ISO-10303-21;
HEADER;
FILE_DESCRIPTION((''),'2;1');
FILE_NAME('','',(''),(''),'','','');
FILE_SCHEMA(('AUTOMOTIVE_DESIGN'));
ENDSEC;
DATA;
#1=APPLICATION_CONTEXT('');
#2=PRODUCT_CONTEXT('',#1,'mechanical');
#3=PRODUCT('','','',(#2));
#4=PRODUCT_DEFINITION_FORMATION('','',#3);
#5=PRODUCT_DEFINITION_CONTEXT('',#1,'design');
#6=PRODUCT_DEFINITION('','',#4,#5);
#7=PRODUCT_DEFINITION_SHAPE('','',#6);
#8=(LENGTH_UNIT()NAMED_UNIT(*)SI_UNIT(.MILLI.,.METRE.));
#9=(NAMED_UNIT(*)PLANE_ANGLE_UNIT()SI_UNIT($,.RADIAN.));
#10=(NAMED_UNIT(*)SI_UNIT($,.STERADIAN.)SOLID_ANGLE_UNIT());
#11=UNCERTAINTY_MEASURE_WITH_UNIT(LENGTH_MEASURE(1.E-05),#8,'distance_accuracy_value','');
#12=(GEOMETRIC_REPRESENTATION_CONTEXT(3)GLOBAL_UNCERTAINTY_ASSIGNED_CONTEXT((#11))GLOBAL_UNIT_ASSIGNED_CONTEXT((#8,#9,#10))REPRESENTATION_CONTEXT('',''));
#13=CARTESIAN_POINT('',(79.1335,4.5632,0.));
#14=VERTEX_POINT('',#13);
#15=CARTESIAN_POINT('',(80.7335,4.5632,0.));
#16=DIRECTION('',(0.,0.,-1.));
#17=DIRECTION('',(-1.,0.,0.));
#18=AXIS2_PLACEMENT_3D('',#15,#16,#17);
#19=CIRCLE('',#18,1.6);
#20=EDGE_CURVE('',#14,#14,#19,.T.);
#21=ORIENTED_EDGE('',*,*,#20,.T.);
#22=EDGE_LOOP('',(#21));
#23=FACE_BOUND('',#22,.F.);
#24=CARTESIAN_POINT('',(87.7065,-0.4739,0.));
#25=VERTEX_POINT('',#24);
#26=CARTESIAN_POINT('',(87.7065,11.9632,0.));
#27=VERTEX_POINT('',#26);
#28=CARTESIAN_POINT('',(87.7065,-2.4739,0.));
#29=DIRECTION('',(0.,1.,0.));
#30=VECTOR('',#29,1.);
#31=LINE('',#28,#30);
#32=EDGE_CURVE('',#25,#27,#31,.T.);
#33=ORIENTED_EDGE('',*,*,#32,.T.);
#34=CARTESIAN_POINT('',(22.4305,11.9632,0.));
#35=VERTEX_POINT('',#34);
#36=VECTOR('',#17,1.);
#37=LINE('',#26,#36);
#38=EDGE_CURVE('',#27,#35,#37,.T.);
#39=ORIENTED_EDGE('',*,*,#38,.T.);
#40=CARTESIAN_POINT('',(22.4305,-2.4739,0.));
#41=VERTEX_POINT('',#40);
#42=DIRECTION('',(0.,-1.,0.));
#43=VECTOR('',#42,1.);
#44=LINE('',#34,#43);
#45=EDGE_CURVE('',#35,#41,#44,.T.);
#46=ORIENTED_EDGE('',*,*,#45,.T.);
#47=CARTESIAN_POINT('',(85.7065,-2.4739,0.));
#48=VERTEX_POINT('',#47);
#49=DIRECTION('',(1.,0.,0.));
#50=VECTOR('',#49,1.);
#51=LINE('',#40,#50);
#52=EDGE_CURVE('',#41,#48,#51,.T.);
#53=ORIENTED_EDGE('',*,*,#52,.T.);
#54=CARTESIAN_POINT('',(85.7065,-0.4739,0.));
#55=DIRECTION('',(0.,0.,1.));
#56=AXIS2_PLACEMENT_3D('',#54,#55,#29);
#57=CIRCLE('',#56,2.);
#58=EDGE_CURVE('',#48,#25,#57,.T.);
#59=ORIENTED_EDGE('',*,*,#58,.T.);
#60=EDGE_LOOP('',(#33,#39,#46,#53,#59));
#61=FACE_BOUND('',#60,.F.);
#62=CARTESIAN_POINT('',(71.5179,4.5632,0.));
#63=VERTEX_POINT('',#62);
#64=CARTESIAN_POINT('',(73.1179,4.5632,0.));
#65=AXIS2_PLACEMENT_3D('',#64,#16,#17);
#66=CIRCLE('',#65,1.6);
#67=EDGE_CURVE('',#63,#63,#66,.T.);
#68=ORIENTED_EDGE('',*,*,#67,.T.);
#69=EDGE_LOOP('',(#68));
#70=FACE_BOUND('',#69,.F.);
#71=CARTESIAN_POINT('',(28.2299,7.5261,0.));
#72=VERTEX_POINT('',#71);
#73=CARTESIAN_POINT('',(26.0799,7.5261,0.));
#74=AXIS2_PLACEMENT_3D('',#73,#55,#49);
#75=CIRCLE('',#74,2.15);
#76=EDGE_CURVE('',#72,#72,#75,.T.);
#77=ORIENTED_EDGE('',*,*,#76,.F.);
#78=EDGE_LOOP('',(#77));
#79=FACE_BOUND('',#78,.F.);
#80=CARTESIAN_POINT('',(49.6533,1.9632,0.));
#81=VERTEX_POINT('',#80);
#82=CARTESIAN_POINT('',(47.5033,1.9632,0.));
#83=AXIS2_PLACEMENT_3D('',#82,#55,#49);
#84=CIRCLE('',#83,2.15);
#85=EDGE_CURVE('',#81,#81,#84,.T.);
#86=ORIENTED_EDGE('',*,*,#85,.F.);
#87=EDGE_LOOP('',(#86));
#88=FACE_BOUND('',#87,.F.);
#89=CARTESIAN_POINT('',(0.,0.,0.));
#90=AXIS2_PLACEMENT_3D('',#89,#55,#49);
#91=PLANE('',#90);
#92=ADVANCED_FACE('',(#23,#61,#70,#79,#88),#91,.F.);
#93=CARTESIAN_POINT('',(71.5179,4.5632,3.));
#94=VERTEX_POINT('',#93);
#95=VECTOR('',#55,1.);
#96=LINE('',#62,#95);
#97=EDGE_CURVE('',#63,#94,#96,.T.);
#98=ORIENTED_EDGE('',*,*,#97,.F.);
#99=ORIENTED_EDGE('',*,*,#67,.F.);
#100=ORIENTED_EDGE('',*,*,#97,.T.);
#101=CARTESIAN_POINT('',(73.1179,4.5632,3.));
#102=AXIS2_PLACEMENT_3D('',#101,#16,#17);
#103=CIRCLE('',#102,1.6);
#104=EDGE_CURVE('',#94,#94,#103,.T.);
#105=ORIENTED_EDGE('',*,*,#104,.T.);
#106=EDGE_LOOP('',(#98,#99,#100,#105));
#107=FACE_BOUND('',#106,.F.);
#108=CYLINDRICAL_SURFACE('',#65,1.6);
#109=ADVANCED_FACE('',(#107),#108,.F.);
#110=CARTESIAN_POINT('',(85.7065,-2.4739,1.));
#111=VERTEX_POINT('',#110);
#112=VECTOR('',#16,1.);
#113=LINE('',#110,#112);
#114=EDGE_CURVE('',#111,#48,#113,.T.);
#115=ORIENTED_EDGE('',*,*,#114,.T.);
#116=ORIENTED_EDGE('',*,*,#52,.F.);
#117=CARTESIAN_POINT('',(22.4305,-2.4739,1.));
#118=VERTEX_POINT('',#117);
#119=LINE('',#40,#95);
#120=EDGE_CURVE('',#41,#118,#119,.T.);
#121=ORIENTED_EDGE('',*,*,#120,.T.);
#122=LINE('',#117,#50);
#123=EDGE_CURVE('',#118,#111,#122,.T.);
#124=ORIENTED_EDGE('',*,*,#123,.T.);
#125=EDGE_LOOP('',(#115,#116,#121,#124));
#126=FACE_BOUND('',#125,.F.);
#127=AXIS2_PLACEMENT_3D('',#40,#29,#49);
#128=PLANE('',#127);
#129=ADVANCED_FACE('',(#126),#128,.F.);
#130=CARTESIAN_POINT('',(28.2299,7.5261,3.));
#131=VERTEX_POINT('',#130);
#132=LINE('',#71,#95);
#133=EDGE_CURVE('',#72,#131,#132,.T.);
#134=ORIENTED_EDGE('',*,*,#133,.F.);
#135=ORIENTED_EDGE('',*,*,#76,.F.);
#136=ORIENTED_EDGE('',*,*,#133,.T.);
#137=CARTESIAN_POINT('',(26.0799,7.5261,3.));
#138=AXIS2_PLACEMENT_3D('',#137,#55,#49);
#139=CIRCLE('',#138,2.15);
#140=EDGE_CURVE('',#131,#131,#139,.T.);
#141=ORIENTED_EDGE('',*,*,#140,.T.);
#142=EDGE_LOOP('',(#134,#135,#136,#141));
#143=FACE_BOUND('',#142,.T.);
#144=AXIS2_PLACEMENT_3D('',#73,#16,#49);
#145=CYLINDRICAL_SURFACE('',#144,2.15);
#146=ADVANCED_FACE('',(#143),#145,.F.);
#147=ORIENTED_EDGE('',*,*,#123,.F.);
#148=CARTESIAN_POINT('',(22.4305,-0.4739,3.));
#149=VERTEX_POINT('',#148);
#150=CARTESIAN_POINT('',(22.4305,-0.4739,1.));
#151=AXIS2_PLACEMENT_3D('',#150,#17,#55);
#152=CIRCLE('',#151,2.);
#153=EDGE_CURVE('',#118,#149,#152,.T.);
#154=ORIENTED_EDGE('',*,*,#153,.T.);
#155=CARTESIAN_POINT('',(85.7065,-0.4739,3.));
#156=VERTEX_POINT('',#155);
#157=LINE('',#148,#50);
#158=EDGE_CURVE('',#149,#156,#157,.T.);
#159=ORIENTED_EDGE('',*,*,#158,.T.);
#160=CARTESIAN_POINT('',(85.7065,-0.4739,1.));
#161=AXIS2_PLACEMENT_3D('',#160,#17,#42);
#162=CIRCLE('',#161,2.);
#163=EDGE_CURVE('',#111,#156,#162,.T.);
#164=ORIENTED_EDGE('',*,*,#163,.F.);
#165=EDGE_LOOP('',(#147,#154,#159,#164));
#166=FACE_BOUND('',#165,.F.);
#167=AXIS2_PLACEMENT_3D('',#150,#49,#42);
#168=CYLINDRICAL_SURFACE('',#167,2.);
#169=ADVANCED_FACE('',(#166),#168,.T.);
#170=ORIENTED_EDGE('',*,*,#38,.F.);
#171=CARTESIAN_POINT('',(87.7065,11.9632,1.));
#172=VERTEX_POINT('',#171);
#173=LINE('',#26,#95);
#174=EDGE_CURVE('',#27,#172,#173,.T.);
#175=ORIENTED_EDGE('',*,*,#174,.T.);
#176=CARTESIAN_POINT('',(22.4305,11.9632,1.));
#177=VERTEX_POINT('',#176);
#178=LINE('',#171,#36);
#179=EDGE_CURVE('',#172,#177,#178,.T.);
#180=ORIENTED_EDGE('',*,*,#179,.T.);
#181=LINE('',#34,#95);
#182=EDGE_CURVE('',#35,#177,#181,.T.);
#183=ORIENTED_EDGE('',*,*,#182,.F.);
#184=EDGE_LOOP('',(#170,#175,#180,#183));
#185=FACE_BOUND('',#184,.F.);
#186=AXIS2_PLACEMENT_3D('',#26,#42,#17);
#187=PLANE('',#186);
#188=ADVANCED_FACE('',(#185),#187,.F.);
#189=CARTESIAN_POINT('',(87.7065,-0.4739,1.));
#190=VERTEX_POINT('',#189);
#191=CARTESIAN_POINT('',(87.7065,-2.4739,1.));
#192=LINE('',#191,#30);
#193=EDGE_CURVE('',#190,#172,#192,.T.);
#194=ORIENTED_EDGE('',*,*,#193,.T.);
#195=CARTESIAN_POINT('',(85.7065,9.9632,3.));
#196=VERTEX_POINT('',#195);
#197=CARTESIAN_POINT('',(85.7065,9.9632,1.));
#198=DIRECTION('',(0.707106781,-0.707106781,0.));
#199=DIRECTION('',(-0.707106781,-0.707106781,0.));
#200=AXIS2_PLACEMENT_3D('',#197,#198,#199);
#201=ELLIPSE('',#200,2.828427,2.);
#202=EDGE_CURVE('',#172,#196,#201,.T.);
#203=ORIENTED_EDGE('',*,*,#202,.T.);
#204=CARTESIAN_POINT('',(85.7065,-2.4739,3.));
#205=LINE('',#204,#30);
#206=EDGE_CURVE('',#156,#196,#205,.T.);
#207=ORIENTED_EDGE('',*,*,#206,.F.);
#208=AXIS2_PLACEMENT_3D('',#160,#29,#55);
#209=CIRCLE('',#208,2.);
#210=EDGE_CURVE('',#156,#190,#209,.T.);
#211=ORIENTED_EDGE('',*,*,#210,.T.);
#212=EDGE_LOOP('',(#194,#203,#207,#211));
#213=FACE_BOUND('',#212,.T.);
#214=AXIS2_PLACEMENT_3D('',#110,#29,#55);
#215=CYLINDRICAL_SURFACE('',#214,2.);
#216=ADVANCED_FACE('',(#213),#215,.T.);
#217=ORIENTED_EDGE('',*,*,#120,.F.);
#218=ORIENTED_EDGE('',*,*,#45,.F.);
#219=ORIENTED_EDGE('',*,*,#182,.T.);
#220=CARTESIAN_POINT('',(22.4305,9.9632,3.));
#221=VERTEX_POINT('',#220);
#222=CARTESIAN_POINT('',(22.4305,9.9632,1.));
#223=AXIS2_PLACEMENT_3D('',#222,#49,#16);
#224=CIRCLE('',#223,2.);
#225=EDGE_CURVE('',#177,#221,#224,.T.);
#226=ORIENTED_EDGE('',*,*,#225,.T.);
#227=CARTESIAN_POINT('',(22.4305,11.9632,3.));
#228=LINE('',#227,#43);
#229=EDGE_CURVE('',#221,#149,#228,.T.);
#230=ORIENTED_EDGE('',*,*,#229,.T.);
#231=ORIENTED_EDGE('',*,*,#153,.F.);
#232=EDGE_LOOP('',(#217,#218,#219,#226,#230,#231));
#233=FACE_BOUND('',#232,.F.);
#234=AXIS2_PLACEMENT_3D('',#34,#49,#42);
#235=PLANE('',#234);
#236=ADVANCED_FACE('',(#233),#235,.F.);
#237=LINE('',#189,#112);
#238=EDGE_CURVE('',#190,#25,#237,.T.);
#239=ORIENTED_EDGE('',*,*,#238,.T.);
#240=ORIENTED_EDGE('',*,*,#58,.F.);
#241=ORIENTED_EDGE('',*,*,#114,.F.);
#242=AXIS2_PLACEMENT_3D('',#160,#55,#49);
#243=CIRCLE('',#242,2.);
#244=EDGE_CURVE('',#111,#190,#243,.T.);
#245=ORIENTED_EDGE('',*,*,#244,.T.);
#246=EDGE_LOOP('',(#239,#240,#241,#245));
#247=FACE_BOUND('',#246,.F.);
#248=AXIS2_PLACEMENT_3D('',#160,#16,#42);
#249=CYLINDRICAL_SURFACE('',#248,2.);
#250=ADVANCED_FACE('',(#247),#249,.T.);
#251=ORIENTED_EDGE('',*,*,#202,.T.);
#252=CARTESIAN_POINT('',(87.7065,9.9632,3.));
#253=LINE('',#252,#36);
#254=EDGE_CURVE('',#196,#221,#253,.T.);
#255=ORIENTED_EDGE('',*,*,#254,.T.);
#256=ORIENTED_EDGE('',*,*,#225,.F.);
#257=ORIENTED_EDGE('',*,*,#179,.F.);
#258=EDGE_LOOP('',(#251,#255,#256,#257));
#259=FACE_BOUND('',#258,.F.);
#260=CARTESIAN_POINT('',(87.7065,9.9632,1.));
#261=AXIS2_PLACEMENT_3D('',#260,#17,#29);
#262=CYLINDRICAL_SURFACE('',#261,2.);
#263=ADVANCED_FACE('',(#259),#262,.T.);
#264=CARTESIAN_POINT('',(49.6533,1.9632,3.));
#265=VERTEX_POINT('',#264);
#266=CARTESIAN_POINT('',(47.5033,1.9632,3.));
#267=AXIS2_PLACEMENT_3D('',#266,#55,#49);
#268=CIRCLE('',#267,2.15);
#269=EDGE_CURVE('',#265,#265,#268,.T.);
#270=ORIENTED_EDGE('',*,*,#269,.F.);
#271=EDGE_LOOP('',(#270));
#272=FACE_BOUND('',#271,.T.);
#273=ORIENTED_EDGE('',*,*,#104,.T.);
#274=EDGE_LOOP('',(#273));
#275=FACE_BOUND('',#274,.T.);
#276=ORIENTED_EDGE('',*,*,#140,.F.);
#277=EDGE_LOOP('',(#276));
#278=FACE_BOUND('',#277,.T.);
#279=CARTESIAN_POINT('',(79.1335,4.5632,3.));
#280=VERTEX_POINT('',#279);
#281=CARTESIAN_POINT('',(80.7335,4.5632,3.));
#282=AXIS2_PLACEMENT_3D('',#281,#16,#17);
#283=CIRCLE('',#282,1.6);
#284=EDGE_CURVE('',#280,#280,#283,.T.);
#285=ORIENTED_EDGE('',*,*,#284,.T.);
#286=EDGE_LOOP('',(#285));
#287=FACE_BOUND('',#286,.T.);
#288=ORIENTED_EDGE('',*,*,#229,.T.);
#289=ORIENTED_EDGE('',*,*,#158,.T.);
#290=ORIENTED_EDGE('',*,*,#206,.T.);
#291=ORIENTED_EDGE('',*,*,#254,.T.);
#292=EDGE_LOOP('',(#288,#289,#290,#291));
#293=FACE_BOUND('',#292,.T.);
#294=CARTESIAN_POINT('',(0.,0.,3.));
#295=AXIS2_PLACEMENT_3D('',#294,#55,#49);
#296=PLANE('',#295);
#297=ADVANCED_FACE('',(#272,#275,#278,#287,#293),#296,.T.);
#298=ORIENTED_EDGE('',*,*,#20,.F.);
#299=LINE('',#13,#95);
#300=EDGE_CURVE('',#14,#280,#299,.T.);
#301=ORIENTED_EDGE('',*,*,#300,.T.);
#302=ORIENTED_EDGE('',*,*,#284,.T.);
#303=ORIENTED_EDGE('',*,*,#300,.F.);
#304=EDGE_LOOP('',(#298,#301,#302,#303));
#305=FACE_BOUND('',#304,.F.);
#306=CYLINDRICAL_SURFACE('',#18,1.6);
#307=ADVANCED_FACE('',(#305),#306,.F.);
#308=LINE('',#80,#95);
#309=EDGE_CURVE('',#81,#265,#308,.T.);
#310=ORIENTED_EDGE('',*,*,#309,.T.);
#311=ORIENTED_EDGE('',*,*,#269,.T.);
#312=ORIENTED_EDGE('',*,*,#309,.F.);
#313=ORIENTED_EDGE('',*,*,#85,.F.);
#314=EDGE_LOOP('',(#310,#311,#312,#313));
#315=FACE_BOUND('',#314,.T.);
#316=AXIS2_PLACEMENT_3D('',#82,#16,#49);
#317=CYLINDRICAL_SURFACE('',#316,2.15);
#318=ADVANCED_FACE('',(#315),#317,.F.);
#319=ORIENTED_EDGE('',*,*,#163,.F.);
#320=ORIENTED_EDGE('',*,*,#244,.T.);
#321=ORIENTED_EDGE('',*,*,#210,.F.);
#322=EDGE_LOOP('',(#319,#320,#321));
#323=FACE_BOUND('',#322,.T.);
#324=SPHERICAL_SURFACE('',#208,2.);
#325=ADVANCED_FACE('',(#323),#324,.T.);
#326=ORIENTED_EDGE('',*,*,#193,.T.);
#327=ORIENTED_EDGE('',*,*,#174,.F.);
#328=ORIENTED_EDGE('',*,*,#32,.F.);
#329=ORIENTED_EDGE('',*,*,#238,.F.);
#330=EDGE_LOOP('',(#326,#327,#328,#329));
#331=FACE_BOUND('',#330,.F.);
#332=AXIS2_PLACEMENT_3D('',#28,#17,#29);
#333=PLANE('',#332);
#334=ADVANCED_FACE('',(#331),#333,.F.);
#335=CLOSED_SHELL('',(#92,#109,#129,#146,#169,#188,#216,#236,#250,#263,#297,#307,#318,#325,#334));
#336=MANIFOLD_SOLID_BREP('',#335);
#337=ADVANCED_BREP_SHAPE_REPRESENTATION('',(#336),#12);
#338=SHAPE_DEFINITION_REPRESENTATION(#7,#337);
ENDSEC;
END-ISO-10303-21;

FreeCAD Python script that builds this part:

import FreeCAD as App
import Part
import Sketcher


def edges_at(feature, points):
    """Names of the edges that pass closest to the given points."""
    edges = feature.Shape.Edges
    near = lambda p: min(range(len(edges)), key=lambda i: edges[i].distToShape(Part.Vertex(*p))[0])
    return sorted({f"Edge{near(p) + 1}" for p in points})


def add_polygon(sketch, points):
    """Adds a closed chain of lines whose ends are joined by coincident constraints."""
    first, n = sketch.GeometryCount, len(points)
    for a, b in zip(points, points[1:] + points[:1]):
        sketch.addGeometry(Part.LineSegment(App.Vector(*a, 0), App.Vector(*b, 0)), False)
    for i in range(n):
        sketch.addConstraint(Sketcher.Constraint("Coincident", first + i, 2, first + (i + 1) % n, 1))

doc = App.newDocument("Part")
body = doc.addObject("PartDesign::Body", "Body")

# Sketch on XY plane
sketch1 = body.newObject("Sketcher::SketchObject", "Sketch")
sketch1.AttachmentSupport = (doc.getObject("XY_Plane"), [""])
sketch1.MapMode = "FlatFace"
add_polygon(sketch1, [(22.4305, 11.9632), (22.4305, -2.4739), (87.7065, -2.4739), (87.7065, 11.9632)])  # lines 0-3
sketch1.addGeometry(Part.Circle(App.Vector(47.5033, 1.9632, 0), App.Vector(0, 0, 1), 2.15), False)  # 4
sketch1.addGeometry(Part.Circle(App.Vector(26.0799, 7.5261, 0), App.Vector(0, 0, 1), 2.15), False)  # 5
sketch1.addConstraint([
    Sketcher.Constraint("Vertical", 0),
    Sketcher.Constraint("Horizontal", 1),
    Sketcher.Constraint("Vertical", 2),
    Sketcher.Constraint("Horizontal", 3),
    Sketcher.Constraint("Equal", 4, 5),
    Sketcher.Constraint("Diameter", 4, 4.3),
    Sketcher.Constraint("DistanceY", 0, 2, 5, 3, 10.0),
    Sketcher.Constraint("DistanceY", 4, 3, 2, 2, 10.0),
    Sketcher.Constraint("DistanceX", 1, 1, 1, 2, 65.276),
    Sketcher.Constraint("DistanceY", 0, 2, 0, 1, 14.437),
    Sketcher.Constraint("DistanceX", -1, 1, 5, 3, 26.08),
    Sketcher.Constraint("DistanceY", -1, 1, 5, 3, 7.526),
    Sketcher.Constraint("DistanceX", -1, 1, 4, 3, 47.5033),
    Sketcher.Constraint("DistanceX", -1, 1, 0, 2, 22.4305),
])
pad1 = body.newObject("PartDesign::Pad", "Pad")
pad1.Profile = sketch1
pad1.Length = 3

# Sketch on XY plane
sketch2 = body.newObject("Sketcher::SketchObject", "Sketch001")
sketch2.AttachmentSupport = (doc.getObject("XY_Plane"), [""])
sketch2.MapMode = "FlatFace"
sketch2.addGeometry([
    Part.Circle(App.Vector(73.1179, 4.5632, 0), App.Vector(0, 0, 1), 1.6),
    Part.Circle(App.Vector(80.7335, 4.5632, 0), App.Vector(0, 0, 1), 1.6),
], False)
sketch2.addConstraint([
    Sketcher.Constraint("Equal", 0, 1),
    Sketcher.Constraint("Horizontal", 0, 3, 1, 3),
    Sketcher.Constraint("Diameter", 0, 3.2),
    Sketcher.Constraint("DistanceX", -1, 1, 0, 3, 73.118),
    Sketcher.Constraint("DistanceY", -1, 1, 0, 3, 4.5632),
    Sketcher.Constraint("DistanceX", -1, 1, 1, 3, 80.7335),
])
pocket1 = body.newObject("PartDesign::Pocket", "Pocket")
pocket1.Profile = sketch2
pocket1.Type = "ThroughAll"
pocket1.Reversed = True
doc.recompute()

fillet = body.newObject("PartDesign::Fillet", "Fillet")
fillet.Base = (pocket1, edges_at(pocket1, [(55.069, 11.963, 3), (87.707, 4.745, 3)]))
fillet.Radius = 2
doc.recompute()

fillet2 = body.newObject("PartDesign::Fillet", "Fillet001")
fillet2.Base = (fillet, edges_at(fillet, [(87.121, -2.474, 2.414), (87.707, -2.474, 0.5), (54.069, -2.474, 3)]))
fillet2.Radius = 2

doc.recompute()
